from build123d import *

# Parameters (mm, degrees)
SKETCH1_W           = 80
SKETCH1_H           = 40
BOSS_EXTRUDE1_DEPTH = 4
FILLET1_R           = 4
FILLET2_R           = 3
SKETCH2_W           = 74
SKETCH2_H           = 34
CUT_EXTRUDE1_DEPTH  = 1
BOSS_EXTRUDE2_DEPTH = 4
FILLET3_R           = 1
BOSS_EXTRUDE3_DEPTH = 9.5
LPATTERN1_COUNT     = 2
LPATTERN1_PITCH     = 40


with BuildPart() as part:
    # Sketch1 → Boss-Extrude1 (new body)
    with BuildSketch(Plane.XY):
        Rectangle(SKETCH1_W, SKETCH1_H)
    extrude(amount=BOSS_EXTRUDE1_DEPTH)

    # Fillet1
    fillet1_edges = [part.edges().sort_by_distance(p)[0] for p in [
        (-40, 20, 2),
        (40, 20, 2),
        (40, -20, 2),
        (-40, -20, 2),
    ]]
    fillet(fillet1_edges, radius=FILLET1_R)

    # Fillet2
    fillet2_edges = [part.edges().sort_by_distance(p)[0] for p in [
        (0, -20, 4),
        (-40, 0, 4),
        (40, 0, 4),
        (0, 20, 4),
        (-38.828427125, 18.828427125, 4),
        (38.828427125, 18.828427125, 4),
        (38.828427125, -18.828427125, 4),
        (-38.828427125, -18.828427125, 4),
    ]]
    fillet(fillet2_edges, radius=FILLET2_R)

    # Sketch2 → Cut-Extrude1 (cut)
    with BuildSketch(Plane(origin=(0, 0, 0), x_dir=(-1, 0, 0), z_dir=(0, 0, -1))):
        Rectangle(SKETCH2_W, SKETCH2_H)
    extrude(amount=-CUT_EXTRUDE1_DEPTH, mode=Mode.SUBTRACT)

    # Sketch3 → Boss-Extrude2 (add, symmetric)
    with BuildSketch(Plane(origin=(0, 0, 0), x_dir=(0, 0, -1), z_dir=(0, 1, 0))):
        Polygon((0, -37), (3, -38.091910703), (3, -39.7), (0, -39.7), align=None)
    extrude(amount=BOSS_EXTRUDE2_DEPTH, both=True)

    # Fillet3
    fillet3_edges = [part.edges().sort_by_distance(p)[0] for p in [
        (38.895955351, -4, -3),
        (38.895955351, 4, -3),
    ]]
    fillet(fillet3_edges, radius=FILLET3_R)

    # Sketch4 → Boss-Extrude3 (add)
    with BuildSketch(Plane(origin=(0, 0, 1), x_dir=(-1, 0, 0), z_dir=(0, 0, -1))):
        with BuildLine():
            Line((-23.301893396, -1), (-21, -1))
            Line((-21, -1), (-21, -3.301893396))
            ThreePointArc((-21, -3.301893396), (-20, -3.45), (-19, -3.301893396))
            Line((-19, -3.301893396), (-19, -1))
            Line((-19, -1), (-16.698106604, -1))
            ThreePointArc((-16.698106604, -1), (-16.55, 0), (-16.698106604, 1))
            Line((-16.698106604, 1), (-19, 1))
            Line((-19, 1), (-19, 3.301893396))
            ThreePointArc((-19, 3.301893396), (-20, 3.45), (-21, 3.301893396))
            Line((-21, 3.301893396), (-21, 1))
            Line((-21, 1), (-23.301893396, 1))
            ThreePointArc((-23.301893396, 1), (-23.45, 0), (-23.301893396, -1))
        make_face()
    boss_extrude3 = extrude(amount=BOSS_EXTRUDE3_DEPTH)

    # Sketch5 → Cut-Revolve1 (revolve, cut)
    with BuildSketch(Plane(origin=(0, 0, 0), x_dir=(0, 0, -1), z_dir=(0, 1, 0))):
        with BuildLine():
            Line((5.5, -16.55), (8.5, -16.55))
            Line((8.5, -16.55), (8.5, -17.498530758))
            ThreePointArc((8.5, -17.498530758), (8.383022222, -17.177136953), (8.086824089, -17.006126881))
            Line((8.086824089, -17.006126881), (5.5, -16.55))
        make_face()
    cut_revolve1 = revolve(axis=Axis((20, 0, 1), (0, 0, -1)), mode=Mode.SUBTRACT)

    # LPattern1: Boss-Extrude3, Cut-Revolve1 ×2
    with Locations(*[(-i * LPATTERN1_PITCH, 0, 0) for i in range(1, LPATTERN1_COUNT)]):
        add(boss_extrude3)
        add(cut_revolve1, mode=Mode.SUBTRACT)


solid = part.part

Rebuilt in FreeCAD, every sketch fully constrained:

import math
import FreeCAD as App
import Part
import Sketcher
from FreeCAD import Vector
Q = App.Units.Quantity


def edges_at(feature, points):
    """Names of the edges that pass closest to the given points."""
    edges = feature.Shape.Edges
    near = lambda p: min(range(len(edges)), key=lambda i: edges[i].distToShape(Part.Vertex(*p))[0])
    return sorted({f"Edge{near(p) + 1}" for p in points})

doc = App.newDocument("Part")
body = doc.addObject("PartDesign::Body", "Body")

sketch1 = body.newObject("Sketcher::SketchObject", "Sketch")
sketch1.AttachmentSupport = (doc.getObject("XY_Plane"), [""])
sketch1.MapMode = "FlatFace"
sketch1.addGeometry(Part.LineSegment(Vector(-40, 20, 0), Vector(-40, -20, 0)), False)
sketch1.addGeometry(Part.LineSegment(Vector(-40, -20, 0), Vector(40, -20, 0)), False)
sketch1.addGeometry(Part.LineSegment(Vector(40, -20, 0), Vector(40, 20, 0)), False)
sketch1.addGeometry(Part.LineSegment(Vector(40, 20, 0), Vector(-40, 20, 0)), False)
sketch1.addConstraint(Sketcher.Constraint("Coincident", 0, 2, 1, 1))
sketch1.addConstraint(Sketcher.Constraint("Coincident", 1, 2, 2, 1))
sketch1.addConstraint(Sketcher.Constraint("Coincident", 2, 2, 3, 1))
sketch1.addConstraint(Sketcher.Constraint("Coincident", 3, 2, 0, 1))
sketch1.addConstraint(Sketcher.Constraint("Vertical", 0))
sketch1.addConstraint(Sketcher.Constraint("Horizontal", 1))
sketch1.addConstraint(Sketcher.Constraint("Vertical", 2))
sketch1.addConstraint(Sketcher.Constraint("Horizontal", 3))
sketch1.addConstraint(Sketcher.Constraint("Symmetric", 0, 2, 2, 2, -1, 1))
sketch1.addConstraint(Sketcher.Constraint("DistanceX", 1, 1, 1, 2, Q("80 mm")))
sketch1.addConstraint(Sketcher.Constraint("DistanceY", 0, 2, 0, 1, Q("40 mm")))
pad1 = body.newObject("PartDesign::Pad", "Pad")
pad1.Profile = sketch1
pad1.Length = 4
doc.recompute()

fillet = body.newObject("PartDesign::Fillet", "Fillet")
fillet.Base = (pad1, edges_at(pad1, [
    (-40, 20, 2),
    (40, 20, 2),
    (40, -20, 2),
    (-40, -20, 2),
]))
fillet.Radius = 4
doc.recompute()

fillet2 = body.newObject("PartDesign::Fillet", "Fillet001")
fillet2.Base = (fillet, edges_at(fillet, [
    (0, -20, 4),
    (-40, 0, 4),
    (40, 0, 4),
    (0, 20, 4),
    (-38.828, 18.828, 4),
    (38.828, 18.828, 4),
    (38.828, -18.828, 4),
    (-38.828, -18.828, 4),
]))
fillet2.Radius = 3

sketch2 = body.newObject("Sketcher::SketchObject", "Sketch001")
sketch2.AttachmentSupport = (doc.getObject("XY_Plane"), [""])
sketch2.MapMode = "FlatFace"
sketch2.addGeometry(Part.LineSegment(Vector(37, 17, 0), Vector(37, -17, 0)), False)
sketch2.addGeometry(Part.LineSegment(Vector(37, -17, 0), Vector(-37, -17, 0)), False)
sketch2.addGeometry(Part.LineSegment(Vector(-37, -17, 0), Vector(-37, 17, 0)), False)
sketch2.addGeometry(Part.LineSegment(Vector(-37, 17, 0), Vector(37, 17, 0)), False)
sketch2.addConstraint(Sketcher.Constraint("Coincident", 0, 2, 1, 1))
sketch2.addConstraint(Sketcher.Constraint("Coincident", 1, 2, 2, 1))
sketch2.addConstraint(Sketcher.Constraint("Coincident", 2, 2, 3, 1))
sketch2.addConstraint(Sketcher.Constraint("Coincident", 3, 2, 0, 1))
sketch2.addConstraint(Sketcher.Constraint("Vertical", 0))
sketch2.addConstraint(Sketcher.Constraint("Horizontal", 1))
sketch2.addConstraint(Sketcher.Constraint("Vertical", 2))
sketch2.addConstraint(Sketcher.Constraint("Horizontal", 3))
sketch2.addConstraint(Sketcher.Constraint("Symmetric", 0, 2, 2, 2, -1, 1))
sketch2.addConstraint(Sketcher.Constraint("DistanceX", 1, 2, 1, 1, Q("74 mm")))
sketch2.addConstraint(Sketcher.Constraint("DistanceY", 0, 2, 0, 1, Q("34 mm")))
pocket1 = body.newObject("PartDesign::Pocket", "Pocket")
pocket1.Profile = sketch2
pocket1.Length = 1
pocket1.Reversed = True

sketch3 = body.newObject("Sketcher::SketchObject", "Sketch002")
sketch3.AttachmentSupport = (doc.getObject("XZ_Plane"), [""])
sketch3.MapMode = "FlatFace"
sketch3.addGeometry(Part.LineSegment(Vector(38.1, -3, 0), Vector(37, 0, 0)), False)
sketch3.addGeometry(Part.LineSegment(Vector(37, 0, 0), Vector(39.7, 0, 0)), False)
sketch3.addGeometry(Part.LineSegment(Vector(39.7, 0, 0), Vector(39.7, -3, 0)), False)
sketch3.addGeometry(Part.LineSegment(Vector(39.7, -3, 0), Vector(38.1, -3, 0)), False)
sketch3.addConstraint(Sketcher.Constraint("Coincident", 0, 2, 1, 1))
sketch3.addConstraint(Sketcher.Constraint("Coincident", 1, 2, 2, 1))
sketch3.addConstraint(Sketcher.Constraint("Coincident", 2, 2, 3, 1))
sketch3.addConstraint(Sketcher.Constraint("Coincident", 3, 2, 0, 1))
sketch3.addConstraint(Sketcher.Constraint("Horizontal", 1))
sketch3.addConstraint(Sketcher.Constraint("Vertical", 2))
sketch3.addConstraint(Sketcher.Constraint("Horizontal", 3))
sketch3.addConstraint(Sketcher.Constraint("PointOnObject", 0, 2, -1))
sketch3.addConstraint(Sketcher.Constraint("DistanceY", 2, 2, 2, 1, Q("3 mm")))
sketch3.addConstraint(Sketcher.Constraint("Angle", 0, Q("110 deg")))
sketch3.addConstraint(Sketcher.Constraint("DistanceX", 1, 1, 1, 2, Q("2.7 mm")))
sketch3.addConstraint(Sketcher.Constraint("DistanceX", -1, 1, 0, 2, Q("37 mm")))
pad2 = body.newObject("PartDesign::Pad", "Pad001")
pad2.Profile = sketch3
pad2.Length = 8
pad2.Midplane = True
doc.recompute()

fillet3 = body.newObject("PartDesign::Fillet", "Fillet002")
fillet3.Base = (pad2, edges_at(pad2, [(38.896, -4, -3), (38.896, 4, -3)]))
fillet3.Radius = 1

sketch4 = body.newObject("Sketcher::SketchObject", "Sketch003")
sketch4.AttachmentSupport = (doc.getObject("XY_Plane"), [""])
sketch4.MapMode = "FlatFace"
sketch4.AttachmentOffset = App.Placement(Vector(0, 0, 1), App.Rotation())
sketch4.addGeometry(Part.LineSegment(Vector(23.3, -1, 0), Vector(21, -1, 0)), False)
sketch4.addGeometry(Part.LineSegment(Vector(21, -1, 0), Vector(21, -3.3, 0)), False)
sketch4.addGeometry(Part.ArcOfCircle(Part.Circle(Vector(20, 0, 0), Vector(0, 0, 1), 3.4), math.radians(-107), math.radians(-73)), False)
sketch4.addGeometry(Part.LineSegment(Vector(19, -3.3, 0), Vector(19, -1, 0)), False)
sketch4.addGeometry(Part.LineSegment(Vector(19, -1, 0), Vector(16.7, -1, 0)), False)
sketch4.addGeometry(Part.ArcOfCircle(Part.Circle(Vector(20, 0, 0), Vector(0, 0, 1), 3.4), math.radians(163), math.radians(197)), False)
sketch4.addGeometry(Part.LineSegment(Vector(16.7, 1, 0), Vector(19, 1, 0)), False)
sketch4.addGeometry(Part.LineSegment(Vector(19, 1, 0), Vector(19, 3.3, 0)), False)
sketch4.addGeometry(Part.ArcOfCircle(Part.Circle(Vector(20, 0, 0), Vector(0, 0, 1), 3.4), math.radians(73), math.radians(107)), False)
sketch4.addGeometry(Part.LineSegment(Vector(21, 3.3, 0), Vector(21, 1, 0)), False)
sketch4.addGeometry(Part.LineSegment(Vector(21, 1, 0), Vector(23.3, 1, 0)), False)
sketch4.addGeometry(Part.ArcOfCircle(Part.Circle(Vector(20, 0, 0), Vector(0, 0, 1), 3.4), math.radians(-17), math.radians(17)), False)
sketch4.addConstraint(Sketcher.Constraint("Coincident", 0, 2, 1, 1))
sketch4.addConstraint(Sketcher.Constraint("Coincident", 1, 2, 2, 2))
sketch4.addConstraint(Sketcher.Constraint("Coincident", 2, 1, 3, 1))
sketch4.addConstraint(Sketcher.Constraint("Coincident", 3, 2, 4, 1))
sketch4.addConstraint(Sketcher.Constraint("Coincident", 4, 2, 5, 2))
sketch4.addConstraint(Sketcher.Constraint("Coincident", 5, 1, 6, 1))
sketch4.addConstraint(Sketcher.Constraint("Coincident", 6, 2, 7, 1))
sketch4.addConstraint(Sketcher.Constraint("Coincident", 7, 2, 8, 2))
sketch4.addConstraint(Sketcher.Constraint("Coincident", 8, 1, 9, 1))
sketch4.addConstraint(Sketcher.Constraint("Coincident", 9, 2, 10, 1))
sketch4.addConstraint(Sketcher.Constraint("Coincident", 10, 2, 11, 2))
sketch4.addConstraint(Sketcher.Constraint("Coincident", 11, 1, 0, 1))
sketch4.addConstraint(Sketcher.Constraint("Horizontal", 0))
sketch4.addConstraint(Sketcher.Constraint("Vertical", 1))
sketch4.addConstraint(Sketcher.Constraint("Vertical", 3))
sketch4.addConstraint(Sketcher.Constraint("Horizontal", 4))
sketch4.addConstraint(Sketcher.Constraint("Horizontal", 6))
sketch4.addConstraint(Sketcher.Constraint("Vertical", 7))
sketch4.addConstraint(Sketcher.Constraint("Vertical", 9))
sketch4.addConstraint(Sketcher.Constraint("Horizontal", 10))
sketch4.addConstraint(Sketcher.Constraint("Coincident", 5, 3, 2, 3))
sketch4.addConstraint(Sketcher.Constraint("Coincident", 8, 3, 2, 3))
sketch4.addConstraint(Sketcher.Constraint("Coincident", 11, 3, 2, 3))
sketch4.addConstraint(Sketcher.Constraint("Equal", 2, 5))
sketch4.addConstraint(Sketcher.Constraint("Equal", 5, 8))
sketch4.addConstraint(Sketcher.Constraint("Equal", 8, 11))
sketch4.addConstraint(Sketcher.Constraint("Symmetric", 4, 2, 5, 1, -1))
sketch4.addConstraint(Sketcher.Constraint("Symmetric", 0, 2, 9, 2, -1))
sketch4.addConstraint(Sketcher.Constraint("Horizontal", 1, 2, 2, 1))
sketch4.addConstraint(Sketcher.Constraint("Horizontal", 0, 2, 3, 2))
sketch4.addConstraint(Sketcher.Constraint("Horizontal", 7, 2, 8, 1))
sketch4.addConstraint(Sketcher.Constraint("Equal", 10, 1))
sketch4.addConstraint(Sketcher.Constraint("Radius", 2, Q("3.45 mm")))
sketch4.addConstraint(Sketcher.Constraint("DistanceX", -1, 1, 2, 3, Q("20 mm")))
sketch4.addConstraint(Sketcher.Constraint("DistanceX", -1, 1, 0, 2, Q("21 mm")))
pad3 = body.newObject("PartDesign::Pad", "Pad002")
pad3.Profile = sketch4
pad3.Length = 9.5
pad3.Reversed = True

sketch5 = body.newObject("Sketcher::SketchObject", "Sketch004")
sketch5.AttachmentSupport = (doc.getObject("XZ_Plane"), [""])
sketch5.MapMode = "FlatFace"
sketch5.addGeometry(Part.LineSegment(Vector(16.6, -8.5, 0), Vector(16.6, -5.5, 0)), False)
sketch5.addGeometry(Part.LineSegment(Vector(16.6, -5.5, 0), Vector(17, -8.1, 0)), False)
sketch5.addGeometry(Part.ArcOfCircle(Part.Circle(Vector(17.5, -8, 0), Vector(0, 0, 1), 0.5), math.radians(-170), math.radians(-90)), False)
sketch5.addGeometry(Part.LineSegment(Vector(17.5, -8.5, 0), Vector(16.6, -8.5, 0)), False)
sketch5.addGeometry(Part.LineSegment(Vector(20, -5.5, 0), Vector(20, -8.5, 0)), True)
sketch5.addConstraint(Sketcher.Constraint("Coincident", 0, 2, 1, 1))
sketch5.addConstraint(Sketcher.Constraint("Tangent", 1, 2, 2, 1))
sketch5.addConstraint(Sketcher.Constraint("Tangent", 2, 2, 3, 1))
sketch5.addConstraint(Sketcher.Constraint("Coincident", 3, 2, 0, 1))
sketch5.addConstraint(Sketcher.Constraint("Vertical", 0))
sketch5.addConstraint(Sketcher.Constraint("Horizontal", 3))
sketch5.addConstraint(Sketcher.Constraint("Vertical", 4))
sketch5.addConstraint(Sketcher.Constraint("Horizontal", 0, 2, 4, 1))
sketch5.addConstraint(Sketcher.Constraint("Horizontal", 3, 2, 4, 2))
sketch5.addConstraint(Sketcher.Constraint("Radius", 2, Q("0.5 mm")))
sketch5.addConstraint(Sketcher.Constraint("DistanceY", 0, 1, 0, 2, Q("3 mm")))
sketch5.addConstraint(Sketcher.Constraint("Angle", 1, Q("-80 deg")))
sketch5.addConstraint(Sketcher.Constraint("DistanceY", 2, 3, -1, 1, Q("8 mm")))
sketch5.addConstraint(Sketcher.Constraint("DistanceX", -1, 1, 4, 1, Q("20 mm")))
sketch5.addConstraint(Sketcher.Constraint("DistanceX", -1, 1, 0, 2, Q("16.55 mm")))
groove = body.newObject("PartDesign::Groove", "Groove")
groove.Profile = sketch5
groove.ReferenceAxis = (sketch5, ["Axis0"])
groove.Angle = 360
doc.recompute()

linearpattern = body.newObject("PartDesign::LinearPattern", "LinearPattern")
linearpattern.Originals = [pad3, groove]
linearpattern.Direction = (doc.getObject("X_Axis"), [""])
linearpattern.Mode = "offset"
linearpattern.Offset = 40
linearpattern.Occurrences = 2
linearpattern.Reversed = True
body.Tip = linearpattern

doc.recompute()
